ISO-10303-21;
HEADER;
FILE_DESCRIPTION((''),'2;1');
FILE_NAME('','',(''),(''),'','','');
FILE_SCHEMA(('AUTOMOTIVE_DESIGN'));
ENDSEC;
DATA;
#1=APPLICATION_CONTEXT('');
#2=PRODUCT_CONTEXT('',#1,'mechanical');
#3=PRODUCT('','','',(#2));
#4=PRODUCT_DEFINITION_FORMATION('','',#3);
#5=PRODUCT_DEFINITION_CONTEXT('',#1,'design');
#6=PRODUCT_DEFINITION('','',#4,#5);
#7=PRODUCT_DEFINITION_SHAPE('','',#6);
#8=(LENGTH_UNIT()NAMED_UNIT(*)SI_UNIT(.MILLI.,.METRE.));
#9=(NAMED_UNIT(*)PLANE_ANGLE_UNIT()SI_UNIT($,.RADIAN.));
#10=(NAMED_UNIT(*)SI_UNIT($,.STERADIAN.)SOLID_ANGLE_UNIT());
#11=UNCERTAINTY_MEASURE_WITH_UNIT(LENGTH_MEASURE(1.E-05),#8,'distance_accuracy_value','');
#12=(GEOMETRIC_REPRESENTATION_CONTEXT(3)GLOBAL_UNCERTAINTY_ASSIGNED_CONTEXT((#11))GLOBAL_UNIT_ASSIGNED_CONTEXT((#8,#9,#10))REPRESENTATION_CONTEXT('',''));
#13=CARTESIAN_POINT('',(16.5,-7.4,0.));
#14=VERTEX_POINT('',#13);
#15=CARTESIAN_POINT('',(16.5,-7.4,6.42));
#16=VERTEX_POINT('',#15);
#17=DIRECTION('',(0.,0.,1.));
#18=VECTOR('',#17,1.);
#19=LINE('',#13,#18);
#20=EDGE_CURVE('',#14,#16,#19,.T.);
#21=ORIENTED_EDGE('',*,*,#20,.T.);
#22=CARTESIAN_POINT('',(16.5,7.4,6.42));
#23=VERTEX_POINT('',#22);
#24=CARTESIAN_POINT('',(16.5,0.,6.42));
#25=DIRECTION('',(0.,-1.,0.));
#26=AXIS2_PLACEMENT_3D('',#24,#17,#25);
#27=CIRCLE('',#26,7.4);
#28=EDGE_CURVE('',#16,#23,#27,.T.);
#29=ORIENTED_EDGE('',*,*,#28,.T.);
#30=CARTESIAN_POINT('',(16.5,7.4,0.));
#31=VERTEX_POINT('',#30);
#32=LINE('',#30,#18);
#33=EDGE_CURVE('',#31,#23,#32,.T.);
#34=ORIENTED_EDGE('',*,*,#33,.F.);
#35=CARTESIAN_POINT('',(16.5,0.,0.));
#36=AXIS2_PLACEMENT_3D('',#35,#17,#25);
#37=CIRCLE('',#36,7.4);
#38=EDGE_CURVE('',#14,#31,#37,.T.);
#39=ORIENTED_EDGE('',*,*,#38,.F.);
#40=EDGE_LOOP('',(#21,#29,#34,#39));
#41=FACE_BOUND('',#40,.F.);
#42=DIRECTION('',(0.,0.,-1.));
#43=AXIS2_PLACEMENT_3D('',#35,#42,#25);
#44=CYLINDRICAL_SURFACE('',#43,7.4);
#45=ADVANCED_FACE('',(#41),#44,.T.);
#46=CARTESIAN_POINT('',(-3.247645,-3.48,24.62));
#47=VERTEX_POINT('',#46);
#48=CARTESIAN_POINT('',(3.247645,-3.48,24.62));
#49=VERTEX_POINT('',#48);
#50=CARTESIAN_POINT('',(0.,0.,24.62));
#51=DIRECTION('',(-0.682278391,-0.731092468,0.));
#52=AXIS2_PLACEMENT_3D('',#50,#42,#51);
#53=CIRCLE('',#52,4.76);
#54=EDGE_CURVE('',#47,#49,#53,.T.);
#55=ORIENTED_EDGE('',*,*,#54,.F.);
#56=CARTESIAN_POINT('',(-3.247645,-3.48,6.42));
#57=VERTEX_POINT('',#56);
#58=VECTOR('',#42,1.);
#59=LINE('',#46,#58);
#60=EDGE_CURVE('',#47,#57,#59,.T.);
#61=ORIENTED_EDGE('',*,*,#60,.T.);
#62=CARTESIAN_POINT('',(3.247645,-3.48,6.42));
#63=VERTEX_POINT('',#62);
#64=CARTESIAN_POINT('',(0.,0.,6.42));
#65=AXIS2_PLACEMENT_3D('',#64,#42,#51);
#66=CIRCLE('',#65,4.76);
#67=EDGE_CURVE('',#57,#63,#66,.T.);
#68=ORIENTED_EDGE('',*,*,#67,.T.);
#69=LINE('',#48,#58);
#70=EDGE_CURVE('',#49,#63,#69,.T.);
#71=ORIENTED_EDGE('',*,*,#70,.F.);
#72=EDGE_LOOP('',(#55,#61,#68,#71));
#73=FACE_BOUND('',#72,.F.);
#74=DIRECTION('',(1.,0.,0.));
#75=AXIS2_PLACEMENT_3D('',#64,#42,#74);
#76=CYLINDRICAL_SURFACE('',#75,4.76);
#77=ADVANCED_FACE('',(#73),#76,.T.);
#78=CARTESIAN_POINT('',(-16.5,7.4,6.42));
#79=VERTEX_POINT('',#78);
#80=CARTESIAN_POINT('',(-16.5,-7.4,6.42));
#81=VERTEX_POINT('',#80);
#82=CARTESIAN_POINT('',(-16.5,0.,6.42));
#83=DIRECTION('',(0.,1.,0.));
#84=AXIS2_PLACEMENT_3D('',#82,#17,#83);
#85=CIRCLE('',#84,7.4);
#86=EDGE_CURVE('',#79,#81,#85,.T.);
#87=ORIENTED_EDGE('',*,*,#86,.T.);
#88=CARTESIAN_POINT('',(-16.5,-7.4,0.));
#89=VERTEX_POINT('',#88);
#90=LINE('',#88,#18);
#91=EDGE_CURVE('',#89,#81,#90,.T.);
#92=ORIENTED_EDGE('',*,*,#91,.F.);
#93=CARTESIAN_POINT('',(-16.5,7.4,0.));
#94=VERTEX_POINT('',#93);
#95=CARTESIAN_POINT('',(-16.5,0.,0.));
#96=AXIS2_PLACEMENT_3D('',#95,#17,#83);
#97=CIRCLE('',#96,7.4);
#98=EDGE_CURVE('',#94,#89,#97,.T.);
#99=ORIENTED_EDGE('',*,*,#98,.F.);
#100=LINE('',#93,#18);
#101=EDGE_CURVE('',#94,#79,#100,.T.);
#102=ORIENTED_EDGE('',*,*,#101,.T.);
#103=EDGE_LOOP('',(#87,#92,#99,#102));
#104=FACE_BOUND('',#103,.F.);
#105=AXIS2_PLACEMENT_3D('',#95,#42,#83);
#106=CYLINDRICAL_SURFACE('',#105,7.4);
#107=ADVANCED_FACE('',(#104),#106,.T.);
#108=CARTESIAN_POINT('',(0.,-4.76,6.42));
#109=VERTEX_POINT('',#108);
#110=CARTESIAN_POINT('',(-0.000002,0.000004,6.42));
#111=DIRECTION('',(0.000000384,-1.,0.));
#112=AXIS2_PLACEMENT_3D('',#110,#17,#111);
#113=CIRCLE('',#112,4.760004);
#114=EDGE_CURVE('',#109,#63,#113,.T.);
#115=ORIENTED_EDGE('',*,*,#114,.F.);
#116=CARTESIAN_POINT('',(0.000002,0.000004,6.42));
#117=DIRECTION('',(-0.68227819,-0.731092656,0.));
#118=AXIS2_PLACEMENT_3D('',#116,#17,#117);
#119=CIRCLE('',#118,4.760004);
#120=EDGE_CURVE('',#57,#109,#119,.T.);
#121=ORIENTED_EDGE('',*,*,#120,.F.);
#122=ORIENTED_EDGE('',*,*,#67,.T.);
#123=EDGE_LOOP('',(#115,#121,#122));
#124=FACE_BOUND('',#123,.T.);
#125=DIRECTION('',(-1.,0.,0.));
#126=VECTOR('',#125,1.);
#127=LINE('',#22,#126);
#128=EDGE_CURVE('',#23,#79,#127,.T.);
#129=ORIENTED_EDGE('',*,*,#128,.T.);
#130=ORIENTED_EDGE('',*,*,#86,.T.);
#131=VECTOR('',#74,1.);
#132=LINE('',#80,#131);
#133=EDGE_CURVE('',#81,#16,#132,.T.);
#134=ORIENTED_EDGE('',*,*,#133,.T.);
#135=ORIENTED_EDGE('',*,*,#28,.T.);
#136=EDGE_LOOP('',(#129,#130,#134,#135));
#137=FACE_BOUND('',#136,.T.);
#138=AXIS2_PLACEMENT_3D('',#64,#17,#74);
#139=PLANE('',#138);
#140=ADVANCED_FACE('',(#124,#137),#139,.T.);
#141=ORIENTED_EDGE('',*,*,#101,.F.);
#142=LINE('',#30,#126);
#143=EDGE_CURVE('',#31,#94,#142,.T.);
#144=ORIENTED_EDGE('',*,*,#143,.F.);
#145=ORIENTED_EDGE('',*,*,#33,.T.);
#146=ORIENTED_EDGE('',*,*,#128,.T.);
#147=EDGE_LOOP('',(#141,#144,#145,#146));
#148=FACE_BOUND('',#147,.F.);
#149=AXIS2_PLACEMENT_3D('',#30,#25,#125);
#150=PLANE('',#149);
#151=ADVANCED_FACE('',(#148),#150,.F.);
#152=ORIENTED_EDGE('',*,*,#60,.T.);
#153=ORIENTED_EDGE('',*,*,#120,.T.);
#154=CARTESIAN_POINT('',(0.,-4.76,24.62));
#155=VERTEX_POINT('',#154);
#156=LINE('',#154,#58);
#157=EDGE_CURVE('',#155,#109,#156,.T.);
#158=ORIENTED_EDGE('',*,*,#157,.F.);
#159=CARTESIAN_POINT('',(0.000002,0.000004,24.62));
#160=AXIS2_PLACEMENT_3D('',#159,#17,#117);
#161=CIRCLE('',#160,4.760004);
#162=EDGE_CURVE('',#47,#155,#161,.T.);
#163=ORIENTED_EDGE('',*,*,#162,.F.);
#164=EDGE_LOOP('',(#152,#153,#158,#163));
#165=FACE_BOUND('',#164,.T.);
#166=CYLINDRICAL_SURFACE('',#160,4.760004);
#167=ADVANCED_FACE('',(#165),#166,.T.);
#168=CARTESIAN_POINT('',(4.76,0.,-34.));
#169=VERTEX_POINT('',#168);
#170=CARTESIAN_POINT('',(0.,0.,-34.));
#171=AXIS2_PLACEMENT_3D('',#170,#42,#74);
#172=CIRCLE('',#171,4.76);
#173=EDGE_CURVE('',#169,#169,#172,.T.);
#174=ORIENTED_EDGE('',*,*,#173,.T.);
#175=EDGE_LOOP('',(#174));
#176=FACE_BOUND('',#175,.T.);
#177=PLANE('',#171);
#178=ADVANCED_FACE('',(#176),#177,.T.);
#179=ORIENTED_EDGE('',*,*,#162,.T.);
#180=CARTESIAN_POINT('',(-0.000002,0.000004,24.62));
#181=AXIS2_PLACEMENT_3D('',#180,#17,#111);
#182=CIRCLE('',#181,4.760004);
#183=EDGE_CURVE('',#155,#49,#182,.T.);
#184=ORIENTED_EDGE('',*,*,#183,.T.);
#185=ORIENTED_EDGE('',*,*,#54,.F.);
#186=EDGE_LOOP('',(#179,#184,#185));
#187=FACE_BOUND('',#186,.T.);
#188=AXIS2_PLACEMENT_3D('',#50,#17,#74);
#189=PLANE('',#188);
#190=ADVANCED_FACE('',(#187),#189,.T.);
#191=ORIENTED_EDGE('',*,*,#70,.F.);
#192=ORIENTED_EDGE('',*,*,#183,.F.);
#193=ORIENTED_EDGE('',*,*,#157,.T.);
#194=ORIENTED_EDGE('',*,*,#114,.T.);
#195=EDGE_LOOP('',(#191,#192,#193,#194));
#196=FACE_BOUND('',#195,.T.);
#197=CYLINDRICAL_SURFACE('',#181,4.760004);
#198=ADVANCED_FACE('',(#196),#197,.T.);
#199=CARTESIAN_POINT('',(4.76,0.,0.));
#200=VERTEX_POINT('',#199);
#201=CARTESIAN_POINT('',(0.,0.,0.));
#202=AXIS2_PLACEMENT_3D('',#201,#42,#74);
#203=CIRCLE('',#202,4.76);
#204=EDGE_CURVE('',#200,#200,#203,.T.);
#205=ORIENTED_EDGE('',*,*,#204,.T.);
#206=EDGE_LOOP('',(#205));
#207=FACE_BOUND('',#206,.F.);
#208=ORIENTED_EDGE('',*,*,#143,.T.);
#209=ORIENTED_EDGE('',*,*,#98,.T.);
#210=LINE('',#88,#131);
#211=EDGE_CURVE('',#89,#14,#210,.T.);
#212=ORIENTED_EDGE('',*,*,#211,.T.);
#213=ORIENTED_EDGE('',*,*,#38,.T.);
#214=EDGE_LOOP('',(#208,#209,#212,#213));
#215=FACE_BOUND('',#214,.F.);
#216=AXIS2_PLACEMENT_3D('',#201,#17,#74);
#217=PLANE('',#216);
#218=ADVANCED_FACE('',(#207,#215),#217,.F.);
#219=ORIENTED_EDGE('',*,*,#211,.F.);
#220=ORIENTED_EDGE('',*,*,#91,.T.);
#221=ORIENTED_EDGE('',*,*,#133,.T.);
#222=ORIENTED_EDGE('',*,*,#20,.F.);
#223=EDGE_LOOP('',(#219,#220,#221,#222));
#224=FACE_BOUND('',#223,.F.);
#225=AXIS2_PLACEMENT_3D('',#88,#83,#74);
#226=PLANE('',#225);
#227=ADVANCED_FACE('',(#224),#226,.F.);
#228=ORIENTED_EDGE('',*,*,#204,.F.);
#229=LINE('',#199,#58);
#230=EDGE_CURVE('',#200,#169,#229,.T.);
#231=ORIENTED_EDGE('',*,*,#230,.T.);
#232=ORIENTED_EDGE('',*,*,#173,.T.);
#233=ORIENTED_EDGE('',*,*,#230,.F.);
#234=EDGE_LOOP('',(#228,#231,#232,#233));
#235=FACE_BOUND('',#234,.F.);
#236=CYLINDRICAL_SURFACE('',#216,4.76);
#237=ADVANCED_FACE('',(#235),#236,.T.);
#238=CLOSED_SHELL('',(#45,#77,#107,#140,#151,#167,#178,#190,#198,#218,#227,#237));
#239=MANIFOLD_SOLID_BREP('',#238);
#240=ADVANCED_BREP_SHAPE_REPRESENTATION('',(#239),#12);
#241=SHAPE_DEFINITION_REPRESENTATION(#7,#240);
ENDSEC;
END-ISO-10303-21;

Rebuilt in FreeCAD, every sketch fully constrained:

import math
import FreeCAD as App
import Part
import Sketcher

V = App.Vector

doc = App.newDocument("Part")
body = doc.addObject("PartDesign::Body", "Body")

# Sketch on XY plane
sketch1 = body.newObject("Sketcher::SketchObject", "Sketch")
sketch1.AttachmentSupport = (doc.getObject("XY_Plane"), [""])
sketch1.MapMode = "FlatFace"
sketch1.addGeometry(Part.LineSegment(V(16, 7, 0), V(-16, 7, 0)), False)
sketch1.addGeometry(Part.ArcOfCircle(Part.Circle(V(-16, 0, 0), V(0, 0, 1), 7), math.radians(90), math.radians(270)), False)
sketch1.addGeometry(Part.LineSegment(V(-16, -7, 0), V(16, -7, 0)), False)
sketch1.addGeometry(Part.ArcOfCircle(Part.Circle(V(16, 0, 0), V(0, 0, 1), 7), math.radians(-90), math.radians(90)), False)
sketch1.addConstraint(Sketcher.Constraint("Tangent", 0, 2, 1, 1))
sketch1.addConstraint(Sketcher.Constraint("Tangent", 1, 2, 2, 1))
sketch1.addConstraint(Sketcher.Constraint("Tangent", 2, 2, 3, 1))
sketch1.addConstraint(Sketcher.Constraint("Tangent", 3, 2, 0, 1))
sketch1.addConstraint(Sketcher.Constraint("Horizontal", 0))
sketch1.addConstraint(Sketcher.Constraint("Horizontal", 2))
sketch1.addConstraint(Sketcher.Constraint("Symmetric", 1, 3, 3, 3, -1, 1))
sketch1.addConstraint(Sketcher.Constraint("Radius", 1, 7.4))
sketch1.addConstraint(Sketcher.Constraint("DistanceX", 0, 2, 0, 1, 33.0))
pad1 = body.newObject("PartDesign::Pad", "Pad")
pad1.Profile = sketch1
pad1.Length = 6.42

# Sketch on XY plane
sketch2 = body.newObject("Sketcher::SketchObject", "Sketch001")
sketch2.AttachmentSupport = (doc.getObject("XY_Plane"), [""])
sketch2.MapMode = "FlatFace"
sketch2.addGeometry(Part.Circle(V(0, 0, 0), V(0, 0, 1), 4.8), False)
sketch2.addConstraint(Sketcher.Constraint("Coincident", 0, 3, -1, 1))
sketch2.addConstraint(Sketcher.Constraint("Diameter", 0, 9.52))
pad2 = body.newObject("PartDesign::Pad", "Pad001")
pad2.Profile = sketch2
pad2.Length = 34
pad2.Reversed = True

# Sketch on XY plane
sketch3 = body.newObject("Sketcher::SketchObject", "Sketch002")
sketch3.AttachmentSupport = (doc.getObject("XY_Plane"), [""])
sketch3.MapMode = "FlatFace"
sketch3.AttachmentOffset = App.Placement(V(0, 0, 6.42), App.Rotation())
sketch3.addGeometry(Part.Circle(V(0, 0, 0), V(0, 0, 1), 4.8), False)
sketch3.addConstraint(Sketcher.Constraint("Coincident", 0, 3, -1, 1))
sketch3.addConstraint(Sketcher.Constraint("Diameter", 0, 9.52))
pad3 = body.newObject("PartDesign::Pad", "Pad002")
pad3.Profile = sketch3
pad3.Length = 18.2

# Sketch on XY plane
sketch4 = body.newObject("Sketcher::SketchObject", "Sketch003")
sketch4.AttachmentSupport = (doc.getObject("XY_Plane"), [""])
sketch4.MapMode = "FlatFace"
sketch4.AttachmentOffset = App.Placement(V(0, 0, 24.62), App.Rotation())
sketch4.addGeometry(Part.ArcOfCircle(Part.Circle(V(0, 0, 0), V(0, 0, 1), 4.8), math.radians(-133), math.radians(-90)), False)
sketch4.addGeometry(Part.ArcOfCircle(Part.Circle(V(0, 0, 0), V(0, 0, 1), 4.8), math.radians(-90), math.radians(-47)), False)
sketch4.addGeometry(Part.LineSegment(V(3.2, -3.5, 0), V(-3.2, -3.5, 0)), False)
sketch4.addConstraint(Sketcher.Constraint("Tangent", 0, 2, 1, 1))
sketch4.addConstraint(Sketcher.Constraint("Coincident", 1, 2, 2, 1))
sketch4.addConstraint(Sketcher.Constraint("Coincident", 2, 2, 0, 1))
sketch4.addConstraint(Sketcher.Constraint("Horizontal", 2))
sketch4.addConstraint(Sketcher.Constraint("Coincident", 0, 3, -1, 1))
sketch4.addConstraint(Sketcher.Constraint("Equal", 0, 1))
sketch4.addConstraint(Sketcher.Constraint("PointOnObject", 0, 2, -2))
sketch4.addConstraint(Sketcher.Constraint("DistanceY", 0, 2, -1, 1, 4.76))
sketch4.addConstraint(Sketcher.Constraint("DistanceY", 1, 2, -1, 1, 3.48))
pad4 = body.newObject("PartDesign::Pad", "Pad003")
pad4.Profile = sketch4
pad4.Length = 18.2
pad4.Reversed = True

doc.recompute()
